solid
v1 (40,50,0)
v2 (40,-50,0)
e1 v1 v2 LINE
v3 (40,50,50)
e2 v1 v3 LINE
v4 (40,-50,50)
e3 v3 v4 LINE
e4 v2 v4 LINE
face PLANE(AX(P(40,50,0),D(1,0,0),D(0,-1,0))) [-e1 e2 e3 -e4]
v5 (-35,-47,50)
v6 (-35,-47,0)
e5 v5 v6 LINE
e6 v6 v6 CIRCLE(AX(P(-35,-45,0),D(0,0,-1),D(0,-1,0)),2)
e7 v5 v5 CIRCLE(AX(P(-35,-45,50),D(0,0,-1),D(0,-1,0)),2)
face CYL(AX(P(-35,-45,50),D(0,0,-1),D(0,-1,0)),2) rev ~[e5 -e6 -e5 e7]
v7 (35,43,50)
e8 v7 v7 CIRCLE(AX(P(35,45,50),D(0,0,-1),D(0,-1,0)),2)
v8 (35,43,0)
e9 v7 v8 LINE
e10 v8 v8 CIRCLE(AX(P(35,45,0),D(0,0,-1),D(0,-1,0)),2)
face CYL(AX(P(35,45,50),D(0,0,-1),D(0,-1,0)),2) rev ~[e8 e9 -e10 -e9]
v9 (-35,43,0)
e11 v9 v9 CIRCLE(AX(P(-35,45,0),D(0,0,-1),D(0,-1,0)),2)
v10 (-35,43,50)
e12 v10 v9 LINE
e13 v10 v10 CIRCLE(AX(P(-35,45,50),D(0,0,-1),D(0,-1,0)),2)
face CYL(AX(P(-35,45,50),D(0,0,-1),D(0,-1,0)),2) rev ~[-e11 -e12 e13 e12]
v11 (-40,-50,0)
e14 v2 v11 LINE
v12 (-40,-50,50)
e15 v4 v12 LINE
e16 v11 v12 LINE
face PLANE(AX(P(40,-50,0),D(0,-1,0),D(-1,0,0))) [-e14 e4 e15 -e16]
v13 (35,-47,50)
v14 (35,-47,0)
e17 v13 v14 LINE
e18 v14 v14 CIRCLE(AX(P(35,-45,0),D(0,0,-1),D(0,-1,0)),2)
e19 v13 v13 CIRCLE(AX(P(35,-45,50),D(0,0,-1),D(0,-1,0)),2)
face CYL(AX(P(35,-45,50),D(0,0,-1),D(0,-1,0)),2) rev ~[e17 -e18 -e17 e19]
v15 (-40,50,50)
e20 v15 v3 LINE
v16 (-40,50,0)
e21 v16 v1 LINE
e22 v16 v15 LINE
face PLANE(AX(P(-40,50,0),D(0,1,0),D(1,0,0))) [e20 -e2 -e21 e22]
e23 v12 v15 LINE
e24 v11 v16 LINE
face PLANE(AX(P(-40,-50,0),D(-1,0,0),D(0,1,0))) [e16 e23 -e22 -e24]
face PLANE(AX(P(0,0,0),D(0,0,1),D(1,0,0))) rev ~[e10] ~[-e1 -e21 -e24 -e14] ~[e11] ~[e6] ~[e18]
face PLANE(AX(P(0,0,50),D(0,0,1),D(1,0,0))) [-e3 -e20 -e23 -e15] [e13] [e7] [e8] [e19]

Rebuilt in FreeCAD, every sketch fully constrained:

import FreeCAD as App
import Part
import Sketcher

V = App.Vector


def add_polygon(sketch, points):
    """Adds a closed chain of lines whose ends are joined by coincident constraints."""
    first, n = sketch.GeometryCount, len(points)
    for a, b in zip(points, points[1:] + points[:1]):
        sketch.addGeometry(Part.LineSegment(App.Vector(*a, 0), App.Vector(*b, 0)), False)
    for i in range(n):
        sketch.addConstraint(Sketcher.Constraint("Coincident", first + i, 2, first + (i + 1) % n, 1))

doc = App.newDocument("Part")
body = doc.addObject("PartDesign::Body", "Body")

sketch1 = doc.addObject("Sketcher::SketchObject", "Sketch")
body.addObject(sketch1)
sketch1.AttachmentSupport = (doc.XY_Plane, [""])
sketch1.MapMode = "FlatFace"
add_polygon(sketch1, [(-40, -50), (40, -50), (40, 50), (-40, 50)])
sketch1.addConstraint([
    Sketcher.Constraint("Horizontal", 0),
    Sketcher.Constraint("Vertical", 1),
    Sketcher.Constraint("Horizontal", 2),
    Sketcher.Constraint("Vertical", 3),
    Sketcher.Constraint("Symmetric", 0, 2, 2, 2, -1, 1),
    Sketcher.Constraint("DistanceX", 0, 1, 0, 2, 80.0),
    Sketcher.Constraint("DistanceY", 1, 1, 1, 2, 100.0),
])
pad1 = doc.addObject("PartDesign::Pad", "Pad")
body.addObject(pad1)
pad1.Profile = sketch1
pad1.Length = 50

sketch2 = doc.addObject("Sketcher::SketchObject", "Sketch001")
body.addObject(sketch2)
sketch2.AttachmentSupport = (doc.XY_Plane, [""])
sketch2.MapMode = "FlatFace"
sketch2.AttachmentOffset = App.Placement(V(0, 0, 50), App.Rotation())
sketch2.addGeometry([
    Part.Circle(V(-35, 45, 0), V(0, 0, 1), 2),
    Part.Circle(V(35, 45, 0), V(0, 0, 1), 2),
    Part.Circle(V(-35, -45, 0), V(0, 0, 1), 2),
    Part.Circle(V(35, -45, 0), V(0, 0, 1), 2),
], False)
sketch2.addConstraint([
    Sketcher.Constraint("Equal", 0, 1),
    Sketcher.Constraint("Equal", 1, 2),
    Sketcher.Constraint("Equal", 2, 3),
    Sketcher.Constraint("Symmetric", 1, 3, 2, 3, -1, 1),
    Sketcher.Constraint("Symmetric", 0, 3, 3, 3, -1, 1),
    Sketcher.Constraint("Symmetric", 0, 3, 1, 3, -2),
    Sketcher.Constraint("Diameter", 0, 4.0),
    Sketcher.Constraint("DistanceX", 0, 3, -1, 1, 35.0),
    Sketcher.Constraint("DistanceY", -1, 1, 0, 3, 45.0),
])
doc.recompute()
hole = doc.addObject("PartDesign::Hole", "Hole")
body.addObject(hole)
hole.Profile = sketch2
hole.ThreadType = "None"
hole.Diameter = 4
hole.DepthType = "Dimension"
hole.Depth = 50
hole.DrillPoint = "Flat"

doc.recompute()
